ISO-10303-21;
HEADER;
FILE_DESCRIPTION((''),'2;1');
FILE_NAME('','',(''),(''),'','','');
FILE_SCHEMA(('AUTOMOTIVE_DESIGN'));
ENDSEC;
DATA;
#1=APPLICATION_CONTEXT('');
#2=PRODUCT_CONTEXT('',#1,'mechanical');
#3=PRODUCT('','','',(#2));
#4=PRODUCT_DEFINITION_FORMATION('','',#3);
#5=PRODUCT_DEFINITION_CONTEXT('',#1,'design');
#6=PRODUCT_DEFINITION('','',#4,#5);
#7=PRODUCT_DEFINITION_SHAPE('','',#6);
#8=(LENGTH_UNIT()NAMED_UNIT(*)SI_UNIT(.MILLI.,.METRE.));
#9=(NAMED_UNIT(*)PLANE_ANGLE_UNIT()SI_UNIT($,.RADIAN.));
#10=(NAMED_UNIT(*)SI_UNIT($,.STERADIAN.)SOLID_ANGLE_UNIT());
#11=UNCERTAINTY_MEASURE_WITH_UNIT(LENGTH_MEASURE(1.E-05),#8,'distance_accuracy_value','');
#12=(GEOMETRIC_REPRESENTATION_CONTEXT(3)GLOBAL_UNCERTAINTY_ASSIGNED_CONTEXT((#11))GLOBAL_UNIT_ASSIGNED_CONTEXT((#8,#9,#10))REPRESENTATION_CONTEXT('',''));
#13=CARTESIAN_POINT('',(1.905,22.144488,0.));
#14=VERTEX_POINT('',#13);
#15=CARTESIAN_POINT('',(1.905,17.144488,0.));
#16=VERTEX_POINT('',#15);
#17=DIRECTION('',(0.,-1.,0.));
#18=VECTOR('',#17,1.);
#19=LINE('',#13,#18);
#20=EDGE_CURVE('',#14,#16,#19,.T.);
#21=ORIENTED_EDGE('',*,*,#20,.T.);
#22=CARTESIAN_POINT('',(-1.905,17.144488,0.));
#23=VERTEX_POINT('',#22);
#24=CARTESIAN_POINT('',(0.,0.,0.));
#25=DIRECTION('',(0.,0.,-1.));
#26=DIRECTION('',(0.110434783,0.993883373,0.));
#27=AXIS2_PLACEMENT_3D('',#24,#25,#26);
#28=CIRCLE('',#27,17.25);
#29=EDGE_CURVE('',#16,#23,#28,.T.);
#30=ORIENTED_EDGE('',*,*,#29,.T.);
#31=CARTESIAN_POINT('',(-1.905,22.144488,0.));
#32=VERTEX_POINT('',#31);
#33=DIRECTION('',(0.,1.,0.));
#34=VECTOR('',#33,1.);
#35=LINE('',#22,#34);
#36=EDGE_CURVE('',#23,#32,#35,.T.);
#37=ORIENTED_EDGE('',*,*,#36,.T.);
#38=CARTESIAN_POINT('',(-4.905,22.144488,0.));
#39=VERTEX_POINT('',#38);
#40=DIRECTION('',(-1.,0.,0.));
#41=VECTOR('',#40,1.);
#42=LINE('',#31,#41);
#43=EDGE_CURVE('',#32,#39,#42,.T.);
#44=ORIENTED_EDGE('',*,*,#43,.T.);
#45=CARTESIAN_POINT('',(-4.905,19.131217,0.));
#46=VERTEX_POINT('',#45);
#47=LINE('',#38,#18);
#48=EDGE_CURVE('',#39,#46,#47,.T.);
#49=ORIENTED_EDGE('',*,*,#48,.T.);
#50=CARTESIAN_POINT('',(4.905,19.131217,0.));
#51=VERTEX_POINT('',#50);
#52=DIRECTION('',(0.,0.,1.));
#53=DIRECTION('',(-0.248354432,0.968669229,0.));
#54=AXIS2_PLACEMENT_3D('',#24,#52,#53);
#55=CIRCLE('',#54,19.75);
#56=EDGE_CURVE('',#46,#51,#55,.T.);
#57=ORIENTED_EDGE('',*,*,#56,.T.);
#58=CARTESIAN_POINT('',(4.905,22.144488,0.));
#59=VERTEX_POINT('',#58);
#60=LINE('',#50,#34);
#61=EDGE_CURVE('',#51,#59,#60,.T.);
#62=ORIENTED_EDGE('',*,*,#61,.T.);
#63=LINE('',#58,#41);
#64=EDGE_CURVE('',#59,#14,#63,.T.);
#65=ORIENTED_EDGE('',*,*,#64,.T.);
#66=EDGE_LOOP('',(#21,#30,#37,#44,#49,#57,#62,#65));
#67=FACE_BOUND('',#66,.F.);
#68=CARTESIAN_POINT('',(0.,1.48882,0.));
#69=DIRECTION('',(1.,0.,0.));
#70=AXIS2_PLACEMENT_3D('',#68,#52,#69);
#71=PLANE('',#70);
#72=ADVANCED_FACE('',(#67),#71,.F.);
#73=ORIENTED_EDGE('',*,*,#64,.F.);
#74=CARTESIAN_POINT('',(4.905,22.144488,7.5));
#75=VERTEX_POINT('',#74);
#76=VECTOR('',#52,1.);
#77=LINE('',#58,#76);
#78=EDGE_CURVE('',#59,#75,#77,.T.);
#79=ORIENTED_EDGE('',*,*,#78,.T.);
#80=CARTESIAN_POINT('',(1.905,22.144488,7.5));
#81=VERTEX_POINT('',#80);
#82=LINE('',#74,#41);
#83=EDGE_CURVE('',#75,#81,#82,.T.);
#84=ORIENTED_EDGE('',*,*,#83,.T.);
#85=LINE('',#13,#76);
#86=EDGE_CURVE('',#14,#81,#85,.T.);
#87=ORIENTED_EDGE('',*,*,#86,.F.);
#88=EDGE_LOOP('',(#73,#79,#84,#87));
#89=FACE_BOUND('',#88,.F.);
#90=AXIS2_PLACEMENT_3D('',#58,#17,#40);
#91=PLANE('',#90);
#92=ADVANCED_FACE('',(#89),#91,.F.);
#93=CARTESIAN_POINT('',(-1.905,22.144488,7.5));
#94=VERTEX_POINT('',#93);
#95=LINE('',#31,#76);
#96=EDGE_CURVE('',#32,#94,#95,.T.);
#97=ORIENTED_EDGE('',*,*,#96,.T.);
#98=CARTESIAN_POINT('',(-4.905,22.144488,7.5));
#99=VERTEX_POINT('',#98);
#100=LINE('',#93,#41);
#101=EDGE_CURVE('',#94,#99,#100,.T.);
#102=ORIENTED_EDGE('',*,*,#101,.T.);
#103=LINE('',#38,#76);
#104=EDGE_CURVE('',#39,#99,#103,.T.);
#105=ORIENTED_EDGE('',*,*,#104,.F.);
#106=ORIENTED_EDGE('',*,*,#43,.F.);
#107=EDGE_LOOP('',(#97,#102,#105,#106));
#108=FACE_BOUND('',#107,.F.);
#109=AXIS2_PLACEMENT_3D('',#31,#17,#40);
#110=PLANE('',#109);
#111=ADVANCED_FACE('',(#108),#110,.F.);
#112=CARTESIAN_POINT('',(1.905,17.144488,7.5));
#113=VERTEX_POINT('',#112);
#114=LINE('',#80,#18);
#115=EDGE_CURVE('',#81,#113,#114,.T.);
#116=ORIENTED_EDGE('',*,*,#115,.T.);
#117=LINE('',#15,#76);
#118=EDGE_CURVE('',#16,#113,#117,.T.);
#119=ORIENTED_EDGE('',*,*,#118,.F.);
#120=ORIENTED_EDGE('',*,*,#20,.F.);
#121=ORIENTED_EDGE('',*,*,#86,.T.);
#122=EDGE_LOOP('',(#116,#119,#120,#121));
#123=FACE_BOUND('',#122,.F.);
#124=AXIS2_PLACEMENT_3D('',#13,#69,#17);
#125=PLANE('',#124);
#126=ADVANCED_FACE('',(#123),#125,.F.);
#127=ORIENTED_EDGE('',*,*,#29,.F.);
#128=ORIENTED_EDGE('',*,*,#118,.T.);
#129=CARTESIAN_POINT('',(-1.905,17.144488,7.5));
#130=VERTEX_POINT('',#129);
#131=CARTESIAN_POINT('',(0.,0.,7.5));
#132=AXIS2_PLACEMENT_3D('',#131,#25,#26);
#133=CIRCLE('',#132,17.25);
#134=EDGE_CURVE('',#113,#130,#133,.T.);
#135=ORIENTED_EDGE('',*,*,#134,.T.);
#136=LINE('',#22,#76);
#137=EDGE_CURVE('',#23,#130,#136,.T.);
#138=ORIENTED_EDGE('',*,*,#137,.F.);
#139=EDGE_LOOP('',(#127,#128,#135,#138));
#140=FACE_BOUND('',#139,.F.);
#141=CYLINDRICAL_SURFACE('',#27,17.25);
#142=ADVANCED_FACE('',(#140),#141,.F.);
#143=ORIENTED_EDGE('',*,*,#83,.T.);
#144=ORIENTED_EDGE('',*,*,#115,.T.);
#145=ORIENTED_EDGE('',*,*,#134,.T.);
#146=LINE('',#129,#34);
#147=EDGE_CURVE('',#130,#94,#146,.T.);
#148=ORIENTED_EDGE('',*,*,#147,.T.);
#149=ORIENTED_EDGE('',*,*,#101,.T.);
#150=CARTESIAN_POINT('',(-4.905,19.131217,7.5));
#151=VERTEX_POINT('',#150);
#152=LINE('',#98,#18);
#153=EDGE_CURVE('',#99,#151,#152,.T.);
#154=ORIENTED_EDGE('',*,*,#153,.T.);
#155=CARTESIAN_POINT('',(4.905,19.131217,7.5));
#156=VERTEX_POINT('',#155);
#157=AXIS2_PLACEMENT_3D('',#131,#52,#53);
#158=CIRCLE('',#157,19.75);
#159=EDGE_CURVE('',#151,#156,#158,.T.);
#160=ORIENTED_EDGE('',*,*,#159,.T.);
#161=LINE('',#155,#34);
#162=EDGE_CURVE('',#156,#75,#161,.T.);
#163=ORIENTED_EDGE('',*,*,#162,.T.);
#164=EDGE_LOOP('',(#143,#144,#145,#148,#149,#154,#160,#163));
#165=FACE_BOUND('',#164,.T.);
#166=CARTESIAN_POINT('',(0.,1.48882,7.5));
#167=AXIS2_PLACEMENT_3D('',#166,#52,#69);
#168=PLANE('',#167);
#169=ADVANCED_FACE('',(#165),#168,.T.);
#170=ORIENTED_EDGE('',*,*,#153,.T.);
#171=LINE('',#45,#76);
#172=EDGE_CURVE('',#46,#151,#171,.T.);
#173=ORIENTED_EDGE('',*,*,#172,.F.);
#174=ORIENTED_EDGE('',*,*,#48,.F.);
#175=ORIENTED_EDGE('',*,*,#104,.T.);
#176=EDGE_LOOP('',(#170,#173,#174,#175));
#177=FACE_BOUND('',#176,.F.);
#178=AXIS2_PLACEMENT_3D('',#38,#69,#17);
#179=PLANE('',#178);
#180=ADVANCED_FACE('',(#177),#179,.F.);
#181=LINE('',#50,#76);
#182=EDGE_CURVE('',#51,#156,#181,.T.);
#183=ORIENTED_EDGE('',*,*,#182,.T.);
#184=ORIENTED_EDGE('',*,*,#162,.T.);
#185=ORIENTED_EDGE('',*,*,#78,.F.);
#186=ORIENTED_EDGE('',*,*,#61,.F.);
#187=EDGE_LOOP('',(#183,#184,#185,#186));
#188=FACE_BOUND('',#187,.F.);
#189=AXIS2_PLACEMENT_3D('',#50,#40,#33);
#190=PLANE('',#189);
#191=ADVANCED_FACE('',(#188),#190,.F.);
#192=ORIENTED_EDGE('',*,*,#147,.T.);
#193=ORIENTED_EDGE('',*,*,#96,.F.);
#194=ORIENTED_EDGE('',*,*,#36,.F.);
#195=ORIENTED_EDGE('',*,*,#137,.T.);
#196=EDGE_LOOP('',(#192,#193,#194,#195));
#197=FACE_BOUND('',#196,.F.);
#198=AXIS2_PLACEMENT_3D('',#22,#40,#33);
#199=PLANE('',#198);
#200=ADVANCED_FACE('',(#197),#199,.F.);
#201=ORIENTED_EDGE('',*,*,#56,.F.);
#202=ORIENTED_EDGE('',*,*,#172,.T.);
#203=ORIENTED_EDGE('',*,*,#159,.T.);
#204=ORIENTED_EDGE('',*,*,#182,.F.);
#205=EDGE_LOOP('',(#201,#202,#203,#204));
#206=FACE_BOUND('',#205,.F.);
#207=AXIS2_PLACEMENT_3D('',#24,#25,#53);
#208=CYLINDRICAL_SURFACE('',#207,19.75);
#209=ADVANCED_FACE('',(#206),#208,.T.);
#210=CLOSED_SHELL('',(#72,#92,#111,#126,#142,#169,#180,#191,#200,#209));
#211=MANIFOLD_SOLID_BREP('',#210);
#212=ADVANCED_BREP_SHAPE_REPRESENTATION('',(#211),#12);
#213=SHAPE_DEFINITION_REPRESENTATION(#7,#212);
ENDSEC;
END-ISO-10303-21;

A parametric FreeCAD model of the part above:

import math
import FreeCAD as App
import Part
import Sketcher
from FreeCAD import Vector

doc = App.newDocument("Part")
body = doc.addObject("PartDesign::Body", "Body")

# Sketch on XY plane
sketch1 = body.newObject("Sketcher::SketchObject", "Sketch")
sketch1.AttachmentSupport = (doc.getObject("XY_Plane"), [""])
sketch1.MapMode = "FlatFace"
sketch1.addGeometry(Part.ArcOfCircle(Part.Circle(Vector(0, 0, 0), Vector(0, 0, 1), 17.25), math.radians(96.34038), math.radians(443.65962)), False)
sketch1.addGeometry(Part.LineSegment(Vector(-1.905, 17.144488, 0), Vector(-1.905, 22.144488, 0)), False)
sketch1.addGeometry(Part.LineSegment(Vector(-1.905, 22.144488, 0), Vector(-4.905, 22.144488, 0)), False)
sketch1.addGeometry(Part.LineSegment(Vector(-4.905, 22.144488, 0), Vector(-4.905, 19.131217, 0)), False)
sketch1.addGeometry(Part.ArcOfCircle(Part.Circle(Vector(0, 0, 0), Vector(0, 0, 1), 19.75), math.radians(104.380157), math.radians(435.619843)), False)
sketch1.addGeometry(Part.LineSegment(Vector(4.905, 19.131217, 0), Vector(4.905, 22.144488, 0)), False)
sketch1.addGeometry(Part.LineSegment(Vector(4.905, 22.144488, 0), Vector(1.905, 22.144488, 0)), False)
sketch1.addGeometry(Part.LineSegment(Vector(1.905, 22.144488, 0), Vector(1.905, 17.144488, 0)), False)
sketch1.addConstraint(Sketcher.Constraint("Coincident", 0, 1, 1, 1))
sketch1.addConstraint(Sketcher.Constraint("Coincident", 1, 2, 2, 1))
sketch1.addConstraint(Sketcher.Constraint("Coincident", 2, 2, 3, 1))
sketch1.addConstraint(Sketcher.Constraint("Coincident", 3, 2, 4, 1))
sketch1.addConstraint(Sketcher.Constraint("Coincident", 4, 2, 5, 1))
sketch1.addConstraint(Sketcher.Constraint("Coincident", 5, 2, 6, 1))
sketch1.addConstraint(Sketcher.Constraint("Coincident", 6, 2, 7, 1))
sketch1.addConstraint(Sketcher.Constraint("Coincident", 7, 2, 0, 2))
sketch1.addConstraint(Sketcher.Constraint("Vertical", 1))
sketch1.addConstraint(Sketcher.Constraint("Horizontal", 2))
sketch1.addConstraint(Sketcher.Constraint("Vertical", 3))
sketch1.addConstraint(Sketcher.Constraint("Vertical", 5))
sketch1.addConstraint(Sketcher.Constraint("Horizontal", 6))
sketch1.addConstraint(Sketcher.Constraint("Vertical", 7))
sketch1.addConstraint(Sketcher.Constraint("Coincident", 0, 3, -1, 1))
sketch1.addConstraint(Sketcher.Constraint("Coincident", 4, 3, -1, 1))
sketch1.addConstraint(Sketcher.Constraint("Symmetric", 2, 2, 5, 2, -2))
sketch1.addConstraint(Sketcher.Constraint("Horizontal", 0, 1, 7, 2))
sketch1.addConstraint(Sketcher.Constraint("DistanceX", 2, 2, 2, 1, 3.0))
sketch1.addConstraint(Sketcher.Constraint("DistanceY", 1, 1, 1, 2, 5.0))
sketch1.addConstraint(Sketcher.Constraint("Radius", 0, 17.25))
sketch1.addConstraint(Sketcher.Constraint("Radius", 4, 19.75))
sketch1.addConstraint(Sketcher.Constraint("DistanceX", 0, 1, 4, 2, 6.81))
pad1 = body.newObject("PartDesign::Pad", "Pad")
pad1.Profile = sketch1
pad1.Length = 7.5

doc.recompute()
